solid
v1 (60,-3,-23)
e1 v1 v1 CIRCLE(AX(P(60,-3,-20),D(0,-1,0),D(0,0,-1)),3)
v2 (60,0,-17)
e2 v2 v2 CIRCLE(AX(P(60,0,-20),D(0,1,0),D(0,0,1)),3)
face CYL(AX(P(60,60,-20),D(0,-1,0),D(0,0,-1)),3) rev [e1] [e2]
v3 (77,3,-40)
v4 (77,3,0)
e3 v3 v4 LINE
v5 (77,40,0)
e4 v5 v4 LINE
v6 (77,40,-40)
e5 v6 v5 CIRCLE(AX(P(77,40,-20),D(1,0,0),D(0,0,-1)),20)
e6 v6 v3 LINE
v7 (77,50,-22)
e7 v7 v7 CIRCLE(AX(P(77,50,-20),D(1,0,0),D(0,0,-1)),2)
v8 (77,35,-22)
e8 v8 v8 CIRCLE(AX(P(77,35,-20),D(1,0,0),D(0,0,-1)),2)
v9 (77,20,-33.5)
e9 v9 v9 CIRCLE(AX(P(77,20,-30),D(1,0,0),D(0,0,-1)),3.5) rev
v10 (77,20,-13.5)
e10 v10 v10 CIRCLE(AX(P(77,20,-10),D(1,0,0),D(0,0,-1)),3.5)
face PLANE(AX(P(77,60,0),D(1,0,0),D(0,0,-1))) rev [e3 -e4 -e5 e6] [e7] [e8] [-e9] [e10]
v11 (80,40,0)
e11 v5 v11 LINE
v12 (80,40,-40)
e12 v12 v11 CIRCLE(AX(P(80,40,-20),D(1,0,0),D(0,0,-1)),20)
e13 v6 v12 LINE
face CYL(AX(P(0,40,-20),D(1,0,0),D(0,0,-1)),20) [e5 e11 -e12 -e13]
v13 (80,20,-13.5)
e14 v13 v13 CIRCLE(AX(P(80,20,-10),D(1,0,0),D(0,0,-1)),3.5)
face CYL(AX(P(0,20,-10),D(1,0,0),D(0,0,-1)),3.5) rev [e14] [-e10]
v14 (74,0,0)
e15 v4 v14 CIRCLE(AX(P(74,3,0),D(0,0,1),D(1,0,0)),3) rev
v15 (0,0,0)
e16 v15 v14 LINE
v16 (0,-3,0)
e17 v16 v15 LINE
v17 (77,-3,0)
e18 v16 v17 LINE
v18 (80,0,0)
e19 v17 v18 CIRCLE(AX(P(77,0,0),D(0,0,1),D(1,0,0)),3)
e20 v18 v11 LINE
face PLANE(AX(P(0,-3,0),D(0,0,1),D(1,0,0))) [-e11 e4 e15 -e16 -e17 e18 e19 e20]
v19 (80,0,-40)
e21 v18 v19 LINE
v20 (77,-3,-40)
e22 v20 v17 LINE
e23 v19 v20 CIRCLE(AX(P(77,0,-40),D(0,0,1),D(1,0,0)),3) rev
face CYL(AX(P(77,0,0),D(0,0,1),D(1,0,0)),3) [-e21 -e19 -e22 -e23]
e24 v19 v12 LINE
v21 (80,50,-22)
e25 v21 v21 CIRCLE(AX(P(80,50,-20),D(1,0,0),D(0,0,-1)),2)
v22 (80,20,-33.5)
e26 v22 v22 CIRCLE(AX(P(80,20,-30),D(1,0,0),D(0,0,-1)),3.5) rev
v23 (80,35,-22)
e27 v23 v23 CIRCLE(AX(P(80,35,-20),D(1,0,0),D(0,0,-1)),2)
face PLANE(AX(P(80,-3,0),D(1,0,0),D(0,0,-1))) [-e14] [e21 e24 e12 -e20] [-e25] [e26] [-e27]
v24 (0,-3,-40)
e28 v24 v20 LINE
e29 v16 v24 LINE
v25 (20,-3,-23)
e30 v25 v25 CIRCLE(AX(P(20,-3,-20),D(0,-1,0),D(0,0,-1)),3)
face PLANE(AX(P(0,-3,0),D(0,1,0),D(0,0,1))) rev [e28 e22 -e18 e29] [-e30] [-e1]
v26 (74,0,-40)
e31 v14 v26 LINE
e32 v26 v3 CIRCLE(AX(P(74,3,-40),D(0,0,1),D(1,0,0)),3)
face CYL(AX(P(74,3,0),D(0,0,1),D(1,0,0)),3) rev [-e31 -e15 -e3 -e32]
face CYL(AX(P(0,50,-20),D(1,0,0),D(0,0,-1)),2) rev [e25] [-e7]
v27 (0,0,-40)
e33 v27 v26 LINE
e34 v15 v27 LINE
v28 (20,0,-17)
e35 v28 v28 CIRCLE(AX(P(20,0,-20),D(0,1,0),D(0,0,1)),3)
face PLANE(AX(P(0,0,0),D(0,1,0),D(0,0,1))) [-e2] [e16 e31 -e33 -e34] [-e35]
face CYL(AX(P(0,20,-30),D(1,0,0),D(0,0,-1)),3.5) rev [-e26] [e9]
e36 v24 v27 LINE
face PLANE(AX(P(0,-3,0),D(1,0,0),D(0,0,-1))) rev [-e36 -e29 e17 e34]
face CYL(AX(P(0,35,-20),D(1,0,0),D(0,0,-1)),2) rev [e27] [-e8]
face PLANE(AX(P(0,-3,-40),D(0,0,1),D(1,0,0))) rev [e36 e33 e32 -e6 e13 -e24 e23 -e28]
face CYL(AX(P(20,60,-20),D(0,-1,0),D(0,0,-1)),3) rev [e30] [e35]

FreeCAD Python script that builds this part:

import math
import FreeCAD as App
import Part
import Sketcher
from FreeCAD import Vector
Q = App.Units.Quantity


def edges_at(feature, points):
    """Names of the edges that pass closest to the given points."""
    edges = feature.Shape.Edges
    near = lambda p: min(range(len(edges)), key=lambda i: edges[i].distToShape(Part.Vertex(*p))[0])
    return sorted({f"Edge{near(p) + 1}" for p in points})

doc = App.newDocument("Part")
body = doc.addObject("PartDesign::Body", "Body")

# Sketch on XZ plane
sketch1 = body.newObject("Sketcher::SketchObject", "Sketch")
sketch1.AttachmentSupport = (doc.getObject("XZ_Plane"), [""])
sketch1.MapMode = "FlatFace"
sketch1.addGeometry([
    Part.LineSegment(Vector(0, -40, 0), Vector(0, 0, 0)),
    Part.LineSegment(Vector(0, 0, 0), Vector(80, 0, 0)),
    Part.LineSegment(Vector(80, 0, 0), Vector(80, -40, 0)),
    Part.LineSegment(Vector(80, -40, 0), Vector(0, -40, 0)),
], False)
sketch1.addConstraint([
    Sketcher.Constraint("Coincident", 0, 2, 1, 1),
    Sketcher.Constraint("Coincident", 1, 2, 2, 1),
    Sketcher.Constraint("Coincident", 2, 2, 3, 1),
    Sketcher.Constraint("Coincident", 3, 2, 0, 1),
    Sketcher.Constraint("Vertical", 0),
    Sketcher.Constraint("Horizontal", 1),
    Sketcher.Constraint("Vertical", 2),
    Sketcher.Constraint("Horizontal", 3),
    Sketcher.Constraint("Coincident", 0, 2, -1, 1),
    Sketcher.Constraint("DistanceX", 1, 1, 1, 2, Q("80 mm")),
    Sketcher.Constraint("DistanceY", 0, 1, 0, 2, Q("40 mm")),
])
pad1 = body.newObject("PartDesign::Pad", "Pad")
pad1.Profile = sketch1
pad1.Length = 3

# Sketch on XZ plane
sketch2 = body.newObject("Sketcher::SketchObject", "Sketch001")
sketch2.AttachmentSupport = (doc.getObject("XZ_Plane"), [""])
sketch2.MapMode = "FlatFace"
sketch2.addGeometry([
    Part.LineSegment(Vector(77, -40, 0), Vector(77, 0, 0)),
    Part.LineSegment(Vector(77, 0, 0), Vector(80, 0, 0)),
    Part.LineSegment(Vector(80, 0, 0), Vector(80, -40, 0)),
    Part.LineSegment(Vector(80, -40, 0), Vector(77, -40, 0)),
], False)
sketch2.addConstraint([
    Sketcher.Constraint("Coincident", 0, 2, 1, 1),
    Sketcher.Constraint("Coincident", 1, 2, 2, 1),
    Sketcher.Constraint("Coincident", 2, 2, 3, 1),
    Sketcher.Constraint("Coincident", 3, 2, 0, 1),
    Sketcher.Constraint("Vertical", 0),
    Sketcher.Constraint("Horizontal", 1),
    Sketcher.Constraint("Vertical", 2),
    Sketcher.Constraint("Horizontal", 3),
    Sketcher.Constraint("PointOnObject", 0, 2, -1),
    Sketcher.Constraint("DistanceX", 1, 1, 1, 2, Q("3 mm")),
    Sketcher.Constraint("DistanceY", 0, 1, 0, 2, Q("40 mm")),
    Sketcher.Constraint("DistanceX", -1, 1, 0, 2, Q("77 mm")),
])
pad2 = body.newObject("PartDesign::Pad", "Pad001")
pad2.Profile = sketch2
pad2.Length = 60
pad2.Reversed = True
doc.recompute()

fillet = body.newObject("PartDesign::Fillet", "Fillet")
fillet.Base = (pad2, edges_at(pad2, [(80, -3, -20), (77, 0, -20)]))
fillet.Radius = 3

# Sketch on YZ plane
sketch3 = body.newObject("Sketcher::SketchObject", "Sketch002")
sketch3.AttachmentSupport = (doc.getObject("YZ_Plane"), [""])
sketch3.MapMode = "FlatFace"
sketch3.AttachmentOffset = App.Placement(Vector(0, 0, 80), App.Rotation())
sketch3.addGeometry([
    Part.ArcOfCircle(Part.Circle(Vector(40, -20, 0), Vector(0, 0, 1), 20), math.radians(0), math.radians(90)),  # 0
    Part.LineSegment(Vector(60, -20, 0), Vector(60, 0, 0)),  # 1
    Part.LineSegment(Vector(60, 0, 0), Vector(40, 0, 0)),  # 2
    Part.LineSegment(Vector(60, -40, 0), Vector(60, -20, 0)),  # 3
    Part.ArcOfCircle(Part.Circle(Vector(40, -20, 0), Vector(0, 0, 1), 20), math.radians(-90), math.radians(0)),  # 4
    Part.LineSegment(Vector(40, -40, 0), Vector(60, -40, 0)),  # 5
    Part.Circle(Vector(50, -20, 0), Vector(0, 0, 1), 2),  # 6
    Part.Circle(Vector(35, -20, 0), Vector(0, 0, 1), 2),  # 7
    Part.Circle(Vector(20, -10, 0), Vector(0, 0, 1), 3.5),  # 8
    Part.Circle(Vector(20, -30, 0), Vector(0, 0, 1), 3.5),  # 9
], False)
sketch3.addConstraint([
    Sketcher.Constraint("Tangent", 0, 1, 1, 1),
    Sketcher.Constraint("Coincident", 1, 2, 2, 1),
    Sketcher.Constraint("Tangent", 2, 2, 0, 2),
    Sketcher.Constraint("Tangent", 3, 2, 4, 2),
    Sketcher.Constraint("Tangent", 4, 1, 5, 1),
    Sketcher.Constraint("Coincident", 5, 2, 3, 1),
    Sketcher.Constraint("Vertical", 1),
    Sketcher.Constraint("Horizontal", 2),
    Sketcher.Constraint("Vertical", 3),
    Sketcher.Constraint("Horizontal", 5),
    Sketcher.Constraint("Coincident", 4, 3, 0, 3),
    Sketcher.Constraint("Equal", 0, 4),
    Sketcher.Constraint("Equal", 6, 7),
    Sketcher.Constraint("Equal", 8, 9),
    Sketcher.Constraint("PointOnObject", 1, 2, -1),
    Sketcher.Constraint("Horizontal", 4, 3, 6, 3),
    Sketcher.Constraint("Horizontal", 6, 3, 7, 3),
    Sketcher.Constraint("Vertical", 8, 3, 9, 3),
    Sketcher.Constraint("Diameter", 6, Q("4 mm")),
    Sketcher.Constraint("Diameter", 8, Q("7 mm")),
    Sketcher.Constraint("Radius", 0, Q("20 mm")),
    Sketcher.Constraint("DistanceX", -1, 1, 0, 3, Q("40 mm")),
    Sketcher.Constraint("DistanceX", -1, 1, 6, 3, Q("50 mm")),
    Sketcher.Constraint("DistanceX", -1, 1, 7, 3, Q("35 mm")),
    Sketcher.Constraint("DistanceX", -1, 1, 8, 3, Q("20 mm")),
    Sketcher.Constraint("DistanceY", 8, 3, -1, 1, Q("10 mm")),
    Sketcher.Constraint("DistanceY", 9, 3, -1, 1, Q("30 mm")),
])
pocket1 = body.newObject("PartDesign::Pocket", "Pocket")
pocket1.Profile = sketch3
pocket1.Type = "ThroughAll"

# Sketch on XZ plane
sketch4 = body.newObject("Sketcher::SketchObject", "Sketch003")
sketch4.AttachmentSupport = (doc.getObject("XZ_Plane"), [""])
sketch4.MapMode = "FlatFace"
sketch4.AttachmentOffset = App.Placement(Vector(0, 0, 3), App.Rotation())
sketch4.addGeometry([
    Part.Circle(Vector(60, -20, 0), Vector(0, 0, 1), 3),
    Part.Circle(Vector(20, -20, 0), Vector(0, 0, 1), 3),
], False)
sketch4.addConstraint([
    Sketcher.Constraint("Equal", 0, 1),
    Sketcher.Constraint("Horizontal", 0, 3, 1, 3),
    Sketcher.Constraint("Diameter", 0, Q("6 mm")),
    Sketcher.Constraint("DistanceX", -1, 1, 0, 3, Q("60 mm")),
    Sketcher.Constraint("DistanceY", 0, 3, -1, 1, Q("20 mm")),
    Sketcher.Constraint("DistanceX", -1, 1, 1, 3, Q("20 mm")),
])
pocket2 = body.newObject("PartDesign::Pocket", "Pocket001")
pocket2.Profile = sketch4
pocket2.Type = "ThroughAll"

doc.recompute()
